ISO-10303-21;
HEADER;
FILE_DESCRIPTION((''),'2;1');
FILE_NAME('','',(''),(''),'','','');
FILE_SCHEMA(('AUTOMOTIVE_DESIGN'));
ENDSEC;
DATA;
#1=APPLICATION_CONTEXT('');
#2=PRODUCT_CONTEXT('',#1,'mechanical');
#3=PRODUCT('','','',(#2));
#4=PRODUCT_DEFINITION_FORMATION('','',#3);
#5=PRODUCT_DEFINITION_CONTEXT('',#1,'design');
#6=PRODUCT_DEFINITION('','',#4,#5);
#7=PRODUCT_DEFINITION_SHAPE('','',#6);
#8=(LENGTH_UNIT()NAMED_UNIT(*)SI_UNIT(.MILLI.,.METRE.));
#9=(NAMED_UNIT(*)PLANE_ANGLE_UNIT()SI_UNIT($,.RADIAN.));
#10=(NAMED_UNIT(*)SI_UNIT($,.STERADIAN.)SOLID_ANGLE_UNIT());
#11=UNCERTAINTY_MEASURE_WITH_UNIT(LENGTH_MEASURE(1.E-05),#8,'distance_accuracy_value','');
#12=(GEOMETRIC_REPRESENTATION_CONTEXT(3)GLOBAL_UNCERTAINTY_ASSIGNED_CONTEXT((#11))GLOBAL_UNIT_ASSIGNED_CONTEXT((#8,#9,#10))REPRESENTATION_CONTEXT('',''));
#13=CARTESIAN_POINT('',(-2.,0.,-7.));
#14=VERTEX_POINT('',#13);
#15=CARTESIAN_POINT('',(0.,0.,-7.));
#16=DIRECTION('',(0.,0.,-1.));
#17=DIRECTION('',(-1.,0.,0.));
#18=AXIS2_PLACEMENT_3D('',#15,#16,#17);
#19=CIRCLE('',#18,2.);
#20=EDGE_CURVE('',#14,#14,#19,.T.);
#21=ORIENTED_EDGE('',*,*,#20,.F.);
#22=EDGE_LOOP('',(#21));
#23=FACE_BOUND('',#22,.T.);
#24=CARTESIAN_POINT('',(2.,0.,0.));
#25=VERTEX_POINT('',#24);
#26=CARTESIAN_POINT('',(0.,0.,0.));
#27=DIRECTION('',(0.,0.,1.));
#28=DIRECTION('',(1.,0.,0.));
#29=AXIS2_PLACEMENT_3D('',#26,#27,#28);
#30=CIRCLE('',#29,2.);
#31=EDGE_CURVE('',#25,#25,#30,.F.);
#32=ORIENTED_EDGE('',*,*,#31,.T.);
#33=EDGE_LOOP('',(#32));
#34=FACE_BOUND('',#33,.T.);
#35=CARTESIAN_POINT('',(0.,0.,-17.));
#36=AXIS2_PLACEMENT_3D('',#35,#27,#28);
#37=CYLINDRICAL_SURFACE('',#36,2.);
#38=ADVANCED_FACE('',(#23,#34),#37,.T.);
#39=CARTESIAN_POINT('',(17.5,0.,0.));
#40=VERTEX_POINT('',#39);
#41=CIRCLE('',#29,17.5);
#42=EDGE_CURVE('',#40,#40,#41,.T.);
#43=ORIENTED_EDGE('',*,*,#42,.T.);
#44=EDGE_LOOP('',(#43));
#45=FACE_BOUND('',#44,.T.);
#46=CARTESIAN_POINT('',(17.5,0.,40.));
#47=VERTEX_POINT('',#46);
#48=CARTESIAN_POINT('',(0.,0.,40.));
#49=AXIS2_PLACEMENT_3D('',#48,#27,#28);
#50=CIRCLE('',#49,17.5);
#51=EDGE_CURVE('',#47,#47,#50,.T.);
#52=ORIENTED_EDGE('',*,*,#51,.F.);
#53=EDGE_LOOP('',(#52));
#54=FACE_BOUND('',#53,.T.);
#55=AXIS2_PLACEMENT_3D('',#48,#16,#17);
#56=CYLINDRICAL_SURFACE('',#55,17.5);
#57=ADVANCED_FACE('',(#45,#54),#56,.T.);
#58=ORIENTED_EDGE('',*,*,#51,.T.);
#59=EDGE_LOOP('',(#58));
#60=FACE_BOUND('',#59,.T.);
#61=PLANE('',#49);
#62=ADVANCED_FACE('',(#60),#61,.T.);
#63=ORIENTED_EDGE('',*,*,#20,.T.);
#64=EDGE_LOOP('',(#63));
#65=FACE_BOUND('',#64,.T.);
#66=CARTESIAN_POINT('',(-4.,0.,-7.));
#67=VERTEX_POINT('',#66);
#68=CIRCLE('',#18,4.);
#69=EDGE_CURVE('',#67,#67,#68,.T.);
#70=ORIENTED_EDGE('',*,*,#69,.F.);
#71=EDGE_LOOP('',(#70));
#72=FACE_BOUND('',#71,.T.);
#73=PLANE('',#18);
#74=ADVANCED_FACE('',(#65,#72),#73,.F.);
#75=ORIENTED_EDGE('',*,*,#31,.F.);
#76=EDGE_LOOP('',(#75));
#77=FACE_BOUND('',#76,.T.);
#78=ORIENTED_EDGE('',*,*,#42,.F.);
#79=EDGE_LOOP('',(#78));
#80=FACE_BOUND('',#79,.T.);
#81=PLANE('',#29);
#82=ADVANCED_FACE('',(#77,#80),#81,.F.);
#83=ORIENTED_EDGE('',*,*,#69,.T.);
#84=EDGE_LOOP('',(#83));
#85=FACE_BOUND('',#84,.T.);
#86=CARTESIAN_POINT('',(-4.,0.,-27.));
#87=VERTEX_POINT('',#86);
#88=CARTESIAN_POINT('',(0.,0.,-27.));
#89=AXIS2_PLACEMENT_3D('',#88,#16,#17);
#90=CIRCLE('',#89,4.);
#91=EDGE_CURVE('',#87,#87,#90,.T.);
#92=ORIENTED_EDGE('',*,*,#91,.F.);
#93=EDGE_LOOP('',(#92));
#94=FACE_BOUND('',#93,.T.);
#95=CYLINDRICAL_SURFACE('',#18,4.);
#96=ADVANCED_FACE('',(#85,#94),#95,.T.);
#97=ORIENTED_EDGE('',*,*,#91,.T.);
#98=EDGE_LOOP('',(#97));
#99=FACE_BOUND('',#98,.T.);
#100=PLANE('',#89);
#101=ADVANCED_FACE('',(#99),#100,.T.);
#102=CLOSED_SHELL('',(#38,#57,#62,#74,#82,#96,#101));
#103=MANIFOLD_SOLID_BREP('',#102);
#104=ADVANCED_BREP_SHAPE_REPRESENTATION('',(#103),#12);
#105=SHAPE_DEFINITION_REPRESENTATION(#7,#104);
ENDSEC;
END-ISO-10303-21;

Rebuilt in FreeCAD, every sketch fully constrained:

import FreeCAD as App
import Part
import Sketcher

V = App.Vector
Q = App.Units.Quantity

doc = App.newDocument("Part")
body = doc.addObject("PartDesign::Body", "Body")

sketch1 = body.newObject("Sketcher::SketchObject", "Sketch")
sketch1.AttachmentSupport = (doc.getObject("XY_Plane"), [""])
sketch1.MapMode = "FlatFace"
sketch1.addGeometry(Part.Circle(V(0, 0, 0), V(0, 0, 1), 17.5), False)
sketch1.addConstraint(Sketcher.Constraint("Coincident", 0, 3, -1, 1))
sketch1.addConstraint(Sketcher.Constraint("Diameter", 0, Q("35 mm")))
pad1 = body.newObject("PartDesign::Pad", "Pad")
pad1.Profile = sketch1
pad1.Length = 40

sketch2 = body.newObject("Sketcher::SketchObject", "Sketch001")
sketch2.AttachmentSupport = (doc.getObject("XY_Plane"), [""])
sketch2.MapMode = "FlatFace"
sketch2.addGeometry(Part.Circle(V(0, 0, 0), V(0, 0, 1), 2), False)
sketch2.addConstraint(Sketcher.Constraint("Coincident", 0, 3, -1, 1))
sketch2.addConstraint(Sketcher.Constraint("Diameter", 0, Q("4 mm")))
pad2 = body.newObject("PartDesign::Pad", "Pad001")
pad2.Profile = sketch2
pad2.Length = 17
pad2.Reversed = True

sketch3 = body.newObject("Sketcher::SketchObject", "Sketch002")
sketch3.AttachmentSupport = (doc.getObject("XY_Plane"), [""])
sketch3.MapMode = "FlatFace"
sketch3.AttachmentOffset = App.Placement(V(0, 0, -17), App.Rotation())
sketch3.addGeometry(Part.Circle(V(0, 0, 0), V(0, 0, 1), 4), False)
sketch3.addConstraint(Sketcher.Constraint("Coincident", 0, 3, -1, 1))
sketch3.addConstraint(Sketcher.Constraint("Diameter", 0, Q("8 mm")))
pad3 = body.newObject("PartDesign::Pad", "Pad002")
pad3.Profile = sketch3
pad3.Type = "TwoLengths"
pad3.Length = 10
pad3.Length2 = 10
pad3.Reversed = True

doc.recompute()
